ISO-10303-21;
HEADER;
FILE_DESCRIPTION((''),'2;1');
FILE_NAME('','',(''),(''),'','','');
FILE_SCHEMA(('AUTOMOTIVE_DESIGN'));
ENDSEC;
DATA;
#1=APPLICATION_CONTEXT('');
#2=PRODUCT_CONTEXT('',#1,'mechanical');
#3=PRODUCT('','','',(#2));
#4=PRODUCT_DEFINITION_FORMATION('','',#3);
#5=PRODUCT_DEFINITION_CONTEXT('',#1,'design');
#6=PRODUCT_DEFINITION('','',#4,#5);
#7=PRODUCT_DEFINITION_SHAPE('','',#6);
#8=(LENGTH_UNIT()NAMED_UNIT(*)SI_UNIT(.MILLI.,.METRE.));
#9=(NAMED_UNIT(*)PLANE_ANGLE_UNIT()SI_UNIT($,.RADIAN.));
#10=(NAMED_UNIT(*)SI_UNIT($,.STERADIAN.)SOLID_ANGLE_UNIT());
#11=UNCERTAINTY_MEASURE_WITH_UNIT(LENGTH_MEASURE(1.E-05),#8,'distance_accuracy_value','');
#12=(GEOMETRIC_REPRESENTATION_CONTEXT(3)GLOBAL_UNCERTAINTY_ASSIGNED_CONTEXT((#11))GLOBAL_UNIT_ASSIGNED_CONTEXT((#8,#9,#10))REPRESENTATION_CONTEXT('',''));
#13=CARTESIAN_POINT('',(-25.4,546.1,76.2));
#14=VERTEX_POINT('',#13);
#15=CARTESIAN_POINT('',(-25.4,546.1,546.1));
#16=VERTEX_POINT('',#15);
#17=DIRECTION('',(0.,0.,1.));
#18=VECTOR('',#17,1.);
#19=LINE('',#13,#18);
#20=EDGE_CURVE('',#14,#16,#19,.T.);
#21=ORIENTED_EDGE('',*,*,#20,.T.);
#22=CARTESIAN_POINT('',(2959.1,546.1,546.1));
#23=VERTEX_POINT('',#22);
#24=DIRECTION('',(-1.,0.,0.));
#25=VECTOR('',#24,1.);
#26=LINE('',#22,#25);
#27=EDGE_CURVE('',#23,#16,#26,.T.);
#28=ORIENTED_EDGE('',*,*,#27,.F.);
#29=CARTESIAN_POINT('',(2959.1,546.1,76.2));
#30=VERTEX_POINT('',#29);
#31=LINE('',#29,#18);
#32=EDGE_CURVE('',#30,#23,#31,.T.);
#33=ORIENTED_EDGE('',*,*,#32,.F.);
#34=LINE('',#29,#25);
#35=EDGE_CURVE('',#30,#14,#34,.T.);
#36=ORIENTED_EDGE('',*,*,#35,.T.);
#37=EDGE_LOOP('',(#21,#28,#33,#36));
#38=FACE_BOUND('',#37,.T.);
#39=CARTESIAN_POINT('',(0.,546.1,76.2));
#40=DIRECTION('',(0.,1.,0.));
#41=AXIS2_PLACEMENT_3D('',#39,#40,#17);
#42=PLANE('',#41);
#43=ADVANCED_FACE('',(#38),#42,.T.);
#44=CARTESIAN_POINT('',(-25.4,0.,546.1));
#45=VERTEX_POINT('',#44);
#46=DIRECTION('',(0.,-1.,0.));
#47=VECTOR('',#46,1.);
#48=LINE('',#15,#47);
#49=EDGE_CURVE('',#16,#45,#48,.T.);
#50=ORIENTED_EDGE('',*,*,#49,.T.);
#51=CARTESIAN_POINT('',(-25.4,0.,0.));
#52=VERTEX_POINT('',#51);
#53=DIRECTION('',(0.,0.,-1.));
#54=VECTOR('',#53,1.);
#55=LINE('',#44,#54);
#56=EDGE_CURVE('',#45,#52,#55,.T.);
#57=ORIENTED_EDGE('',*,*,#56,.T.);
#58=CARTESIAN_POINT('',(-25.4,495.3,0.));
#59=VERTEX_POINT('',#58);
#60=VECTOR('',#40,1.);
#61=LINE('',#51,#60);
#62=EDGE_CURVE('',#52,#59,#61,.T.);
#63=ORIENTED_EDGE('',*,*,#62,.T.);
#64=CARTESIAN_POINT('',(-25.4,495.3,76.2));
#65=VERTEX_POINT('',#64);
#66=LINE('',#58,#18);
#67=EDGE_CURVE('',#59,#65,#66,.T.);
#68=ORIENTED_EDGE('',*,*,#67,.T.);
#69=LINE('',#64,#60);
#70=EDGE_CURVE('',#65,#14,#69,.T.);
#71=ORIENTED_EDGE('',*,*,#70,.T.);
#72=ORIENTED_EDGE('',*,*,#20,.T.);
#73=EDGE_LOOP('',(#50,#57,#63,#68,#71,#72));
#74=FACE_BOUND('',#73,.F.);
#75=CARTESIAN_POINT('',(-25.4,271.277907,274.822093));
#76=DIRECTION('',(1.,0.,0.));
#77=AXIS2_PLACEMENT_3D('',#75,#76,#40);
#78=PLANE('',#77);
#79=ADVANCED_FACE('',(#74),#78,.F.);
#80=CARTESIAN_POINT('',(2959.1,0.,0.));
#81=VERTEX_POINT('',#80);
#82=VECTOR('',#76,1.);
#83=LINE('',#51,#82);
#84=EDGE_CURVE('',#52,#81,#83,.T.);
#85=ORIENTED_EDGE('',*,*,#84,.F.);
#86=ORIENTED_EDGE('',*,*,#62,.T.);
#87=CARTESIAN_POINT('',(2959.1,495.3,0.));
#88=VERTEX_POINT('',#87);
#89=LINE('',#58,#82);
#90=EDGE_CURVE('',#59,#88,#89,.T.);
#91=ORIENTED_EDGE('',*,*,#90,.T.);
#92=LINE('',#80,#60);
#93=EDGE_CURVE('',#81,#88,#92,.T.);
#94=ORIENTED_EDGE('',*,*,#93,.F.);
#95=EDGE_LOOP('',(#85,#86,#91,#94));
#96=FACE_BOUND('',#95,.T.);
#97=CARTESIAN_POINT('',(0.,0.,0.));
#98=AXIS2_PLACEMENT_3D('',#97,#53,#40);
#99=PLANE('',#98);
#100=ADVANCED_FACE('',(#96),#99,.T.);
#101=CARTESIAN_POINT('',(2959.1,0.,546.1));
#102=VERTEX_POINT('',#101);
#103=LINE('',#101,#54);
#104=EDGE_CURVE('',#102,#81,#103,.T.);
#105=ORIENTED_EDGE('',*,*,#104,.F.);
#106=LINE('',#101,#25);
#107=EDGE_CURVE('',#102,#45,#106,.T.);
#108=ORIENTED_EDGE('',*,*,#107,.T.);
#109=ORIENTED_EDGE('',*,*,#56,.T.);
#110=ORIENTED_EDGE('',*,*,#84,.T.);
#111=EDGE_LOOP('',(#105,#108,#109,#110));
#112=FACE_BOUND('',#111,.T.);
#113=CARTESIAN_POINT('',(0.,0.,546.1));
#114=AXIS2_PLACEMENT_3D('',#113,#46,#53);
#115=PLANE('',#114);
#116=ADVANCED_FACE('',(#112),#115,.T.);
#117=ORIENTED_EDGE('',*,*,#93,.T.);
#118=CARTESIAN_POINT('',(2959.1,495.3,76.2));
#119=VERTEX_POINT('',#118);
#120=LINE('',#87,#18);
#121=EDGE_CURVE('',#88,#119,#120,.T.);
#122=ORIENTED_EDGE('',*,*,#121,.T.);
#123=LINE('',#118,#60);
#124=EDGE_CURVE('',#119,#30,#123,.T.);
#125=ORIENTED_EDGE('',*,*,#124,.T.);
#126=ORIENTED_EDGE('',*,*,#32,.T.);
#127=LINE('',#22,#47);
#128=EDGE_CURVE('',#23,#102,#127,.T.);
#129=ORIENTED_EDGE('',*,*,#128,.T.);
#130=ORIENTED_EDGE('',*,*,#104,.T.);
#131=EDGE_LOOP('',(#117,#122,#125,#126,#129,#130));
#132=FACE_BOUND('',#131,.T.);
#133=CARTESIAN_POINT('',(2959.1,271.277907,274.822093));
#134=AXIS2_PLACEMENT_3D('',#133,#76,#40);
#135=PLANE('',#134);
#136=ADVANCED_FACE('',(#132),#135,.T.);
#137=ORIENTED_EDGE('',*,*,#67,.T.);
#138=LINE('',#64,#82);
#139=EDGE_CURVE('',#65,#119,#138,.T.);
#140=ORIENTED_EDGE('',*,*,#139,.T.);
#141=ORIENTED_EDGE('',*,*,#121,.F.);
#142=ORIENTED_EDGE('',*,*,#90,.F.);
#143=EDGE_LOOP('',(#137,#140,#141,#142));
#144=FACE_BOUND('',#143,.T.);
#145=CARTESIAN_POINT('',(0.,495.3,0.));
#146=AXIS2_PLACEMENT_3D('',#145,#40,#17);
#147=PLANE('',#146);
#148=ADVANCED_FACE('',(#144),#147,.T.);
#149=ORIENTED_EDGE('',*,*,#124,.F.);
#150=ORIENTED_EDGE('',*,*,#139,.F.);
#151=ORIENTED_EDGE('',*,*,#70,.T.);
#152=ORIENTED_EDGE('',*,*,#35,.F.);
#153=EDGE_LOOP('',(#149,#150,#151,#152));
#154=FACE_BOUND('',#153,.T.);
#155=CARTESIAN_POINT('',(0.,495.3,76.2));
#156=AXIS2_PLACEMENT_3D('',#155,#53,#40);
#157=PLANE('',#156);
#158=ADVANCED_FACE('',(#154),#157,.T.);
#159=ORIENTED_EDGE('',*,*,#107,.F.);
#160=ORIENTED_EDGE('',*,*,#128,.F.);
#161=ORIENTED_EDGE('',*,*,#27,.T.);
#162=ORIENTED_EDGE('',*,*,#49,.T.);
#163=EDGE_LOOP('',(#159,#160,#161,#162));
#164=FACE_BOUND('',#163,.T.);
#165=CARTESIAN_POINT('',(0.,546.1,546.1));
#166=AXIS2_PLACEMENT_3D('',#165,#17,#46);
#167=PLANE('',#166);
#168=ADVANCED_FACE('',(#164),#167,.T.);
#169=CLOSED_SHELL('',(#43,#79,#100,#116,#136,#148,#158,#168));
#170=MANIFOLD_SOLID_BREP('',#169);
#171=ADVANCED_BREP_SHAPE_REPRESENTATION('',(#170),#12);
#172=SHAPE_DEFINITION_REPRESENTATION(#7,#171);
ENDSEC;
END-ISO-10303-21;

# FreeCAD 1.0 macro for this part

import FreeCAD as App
import Part
import Sketcher
Q = App.Units.Quantity


def add_polygon(sketch, points):
    """Adds a closed chain of lines whose ends are joined by coincident constraints."""
    first, n = sketch.GeometryCount, len(points)
    for a, b in zip(points, points[1:] + points[:1]):
        sketch.addGeometry(Part.LineSegment(App.Vector(*a, 0), App.Vector(*b, 0)), False)
    for i in range(n):
        sketch.addConstraint(Sketcher.Constraint("Coincident", first + i, 2, first + (i + 1) % n, 1))

doc = App.newDocument("Part")
body = doc.addObject("PartDesign::Body", "Body")

# Sketch on YZ plane
sketch1 = body.newObject("Sketcher::SketchObject", "Sketch")
sketch1.AttachmentSupport = (doc.getObject("YZ_Plane"), [""])
sketch1.MapMode = "FlatFace"
add_polygon(sketch1, [(0, 546.1), (0, 0), (495.3, 0), (495.3, 76.2), (546.1, 76.2), (546.1, 546.1)])  # lines 0-5
sketch1.addConstraint(Sketcher.Constraint("Vertical", 0))
sketch1.addConstraint(Sketcher.Constraint("Horizontal", 1))
sketch1.addConstraint(Sketcher.Constraint("Vertical", 2))
sketch1.addConstraint(Sketcher.Constraint("Horizontal", 3))
sketch1.addConstraint(Sketcher.Constraint("Vertical", 4))
sketch1.addConstraint(Sketcher.Constraint("Horizontal", 5))
sketch1.addConstraint(Sketcher.Constraint("Coincident", 0, 2, -1, 1))
sketch1.addConstraint(Sketcher.Constraint("Equal", 5, 0))
sketch1.addConstraint(Sketcher.Constraint("DistanceX", 3, 1, 3, 2, Q("2 in")))
sketch1.addConstraint(Sketcher.Constraint("DistanceY", 2, 1, 2, 2, Q("3 in")))
sketch1.addConstraint(Sketcher.Constraint("DistanceX", 1, 1, 1, 2, Q("19.5 in")))
pad1 = body.newObject("PartDesign::Pad", "Pad")
pad1.Profile = sketch1
pad1.Type = "TwoLengths"
pad1.Length = Q("116.5 in")
pad1.Length2 = Q("1 in")

doc.recompute()
